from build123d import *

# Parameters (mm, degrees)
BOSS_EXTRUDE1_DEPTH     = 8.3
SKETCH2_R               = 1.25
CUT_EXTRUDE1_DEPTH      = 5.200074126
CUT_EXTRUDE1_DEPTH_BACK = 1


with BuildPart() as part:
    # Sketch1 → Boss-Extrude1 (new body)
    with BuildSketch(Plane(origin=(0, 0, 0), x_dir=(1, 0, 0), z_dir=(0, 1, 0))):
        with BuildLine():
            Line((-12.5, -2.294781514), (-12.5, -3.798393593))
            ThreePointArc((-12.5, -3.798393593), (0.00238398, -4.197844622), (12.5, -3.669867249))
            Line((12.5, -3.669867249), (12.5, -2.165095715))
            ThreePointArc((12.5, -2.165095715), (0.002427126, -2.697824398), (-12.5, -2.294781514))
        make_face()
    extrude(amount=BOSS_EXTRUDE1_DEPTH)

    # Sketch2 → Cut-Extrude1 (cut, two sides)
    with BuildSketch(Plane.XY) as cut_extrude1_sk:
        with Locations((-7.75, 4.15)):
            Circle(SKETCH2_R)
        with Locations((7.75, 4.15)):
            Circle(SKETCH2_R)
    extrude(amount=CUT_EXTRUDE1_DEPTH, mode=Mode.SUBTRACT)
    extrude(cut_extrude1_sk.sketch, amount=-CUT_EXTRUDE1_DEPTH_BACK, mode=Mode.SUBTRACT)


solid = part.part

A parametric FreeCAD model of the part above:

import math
import FreeCAD as App
import Part
import Sketcher

doc = App.newDocument("Part")
body = doc.addObject("PartDesign::Body", "Body")

# Sketch on XZ plane
sketch1 = body.newObject("Sketcher::SketchObject", "Sketch")
sketch1.AttachmentSupport = (doc.getObject("XZ_Plane"), [""])
sketch1.MapMode = "FlatFace"
sketch1.addGeometry([
    Part.LineSegment(App.Vector(-12.5, 2.3, 0), App.Vector(-12.5, 3.8, 0)),
    Part.ArcOfCircle(Part.Circle(App.Vector(-0.9, -164.5, 0), App.Vector(0, 0, 1), 168.7), math.radians(85.46), math.radians(93.95)),
    Part.LineSegment(App.Vector(12.5, 3.7, 0), App.Vector(12.5, 2.2, 0)),
    Part.ArcOfCircle(Part.Circle(App.Vector(-0.9, -164.5, 0), App.Vector(0, 0, 1), 167.2), math.radians(85.42), math.radians(93.99)),
], False)
sketch1.addConstraint([
    Sketcher.Constraint("Coincident", 0, 2, 1, 2),
    Sketcher.Constraint("Coincident", 1, 1, 2, 1),
    Sketcher.Constraint("Coincident", 2, 2, 3, 1),
    Sketcher.Constraint("Coincident", 3, 2, 0, 1),
    Sketcher.Constraint("Vertical", 0),
    Sketcher.Constraint("Vertical", 2),
    Sketcher.Constraint("Coincident", 3, 3, 1, 3),
    Sketcher.Constraint("DistanceX", 0, 2, 1, 1, 25.0),
    Sketcher.Constraint("DistanceX", 0, 2, -1, 1, 12.5),
    Sketcher.Constraint("Radius", 1, 168.710704),
    Sketcher.Constraint("Radius", 3, 167.210704),
    Sketcher.Constraint("DistanceY", 1, 3, -1, 1, 164.51063),
    Sketcher.Constraint("DistanceY", -1, 1, 3, 2, 2.294782),
])
pad1 = body.newObject("PartDesign::Pad", "Pad")
pad1.Profile = sketch1
pad1.Length = 8.3
pad1.Reversed = True

# Sketch on XY plane
sketch2 = body.newObject("Sketcher::SketchObject", "Sketch001")
sketch2.AttachmentSupport = (doc.getObject("XY_Plane"), [""])
sketch2.MapMode = "FlatFace"
sketch2.addGeometry([
    Part.Circle(App.Vector(-7.8, 4.2, 0), App.Vector(0, 0, 1), 1.2),
    Part.Circle(App.Vector(7.8, 4.2, 0), App.Vector(0, 0, 1), 1.2),
], False)
sketch2.addConstraint([
    Sketcher.Constraint("Equal", 0, 1),
    Sketcher.Constraint("Symmetric", 0, 3, 1, 3, -2),
    Sketcher.Constraint("Diameter", 0, 2.5),
    Sketcher.Constraint("DistanceX", 0, 3, 1, 3, 15.5),
    Sketcher.Constraint("DistanceY", -1, 1, 0, 3, 4.15),
])
pocket1 = body.newObject("PartDesign::Pocket", "Pocket")
pocket1.Profile = sketch2
pocket1.Type = "ThroughAll"
pocket1.Midplane = True

doc.recompute()
